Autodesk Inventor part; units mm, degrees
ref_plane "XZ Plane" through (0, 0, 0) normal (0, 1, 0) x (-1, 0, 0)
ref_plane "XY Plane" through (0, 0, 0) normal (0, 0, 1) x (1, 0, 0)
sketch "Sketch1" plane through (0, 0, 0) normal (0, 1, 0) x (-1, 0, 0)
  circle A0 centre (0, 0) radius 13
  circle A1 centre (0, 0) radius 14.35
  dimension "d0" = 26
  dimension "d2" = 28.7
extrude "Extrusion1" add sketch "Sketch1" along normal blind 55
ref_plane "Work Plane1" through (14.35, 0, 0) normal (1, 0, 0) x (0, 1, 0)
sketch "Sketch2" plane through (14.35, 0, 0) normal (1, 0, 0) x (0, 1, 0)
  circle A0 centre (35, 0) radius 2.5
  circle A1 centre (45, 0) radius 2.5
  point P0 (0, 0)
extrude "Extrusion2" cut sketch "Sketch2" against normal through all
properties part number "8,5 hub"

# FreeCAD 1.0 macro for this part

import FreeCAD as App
import Part
import Sketcher

V = App.Vector

doc = App.newDocument("Part")
body = doc.addObject("PartDesign::Body", "Body")

# Sketch on XZ plane
sketch1 = body.newObject("Sketcher::SketchObject", "Sketch")
sketch1.AttachmentSupport = (doc.getObject("XZ_Plane"), [""])
sketch1.MapMode = "FlatFace"
sketch1.addGeometry([
    Part.Circle(V(0, 0, 0), V(0, 0, 1), 14.35),
    Part.Circle(V(0, 0, 0), V(0, 0, 1), 13),
], False)
sketch1.addConstraint([
    Sketcher.Constraint("Coincident", 0, 3, -1, 1),
    Sketcher.Constraint("Coincident", 1, 3, -1, 1),
    Sketcher.Constraint("Diameter", 1, 26.0),
    Sketcher.Constraint("Diameter", 0, 28.7),
])
pad1 = body.newObject("PartDesign::Pad", "Pad")
pad1.Profile = sketch1
pad1.Length = 55
pad1.Reversed = True

# Sketch on YZ plane
sketch2 = body.newObject("Sketcher::SketchObject", "Sketch001")
sketch2.AttachmentSupport = (doc.getObject("YZ_Plane"), [""])
sketch2.MapMode = "FlatFace"
sketch2.AttachmentOffset = App.Placement(V(0, 0, 14.35), App.Rotation())
sketch2.addGeometry([
    Part.Circle(V(35, 0, 0), V(0, 0, 1), 2.5),
    Part.Circle(V(45, 0, 0), V(0, 0, 1), 2.5),
], False)
sketch2.addConstraint([
    Sketcher.Constraint("Equal", 0, 1),
    Sketcher.Constraint("PointOnObject", 0, 3, -1),
    Sketcher.Constraint("PointOnObject", 1, 3, -1),
    Sketcher.Constraint("Diameter", 0, 5.0),
    Sketcher.Constraint("DistanceX", -1, 1, 0, 3, 35.0),
    Sketcher.Constraint("DistanceX", -1, 1, 1, 3, 45.0),
])
pocket1 = body.newObject("PartDesign::Pocket", "Pocket")
pocket1.Profile = sketch2
pocket1.Type = "ThroughAll"

doc.recompute()
